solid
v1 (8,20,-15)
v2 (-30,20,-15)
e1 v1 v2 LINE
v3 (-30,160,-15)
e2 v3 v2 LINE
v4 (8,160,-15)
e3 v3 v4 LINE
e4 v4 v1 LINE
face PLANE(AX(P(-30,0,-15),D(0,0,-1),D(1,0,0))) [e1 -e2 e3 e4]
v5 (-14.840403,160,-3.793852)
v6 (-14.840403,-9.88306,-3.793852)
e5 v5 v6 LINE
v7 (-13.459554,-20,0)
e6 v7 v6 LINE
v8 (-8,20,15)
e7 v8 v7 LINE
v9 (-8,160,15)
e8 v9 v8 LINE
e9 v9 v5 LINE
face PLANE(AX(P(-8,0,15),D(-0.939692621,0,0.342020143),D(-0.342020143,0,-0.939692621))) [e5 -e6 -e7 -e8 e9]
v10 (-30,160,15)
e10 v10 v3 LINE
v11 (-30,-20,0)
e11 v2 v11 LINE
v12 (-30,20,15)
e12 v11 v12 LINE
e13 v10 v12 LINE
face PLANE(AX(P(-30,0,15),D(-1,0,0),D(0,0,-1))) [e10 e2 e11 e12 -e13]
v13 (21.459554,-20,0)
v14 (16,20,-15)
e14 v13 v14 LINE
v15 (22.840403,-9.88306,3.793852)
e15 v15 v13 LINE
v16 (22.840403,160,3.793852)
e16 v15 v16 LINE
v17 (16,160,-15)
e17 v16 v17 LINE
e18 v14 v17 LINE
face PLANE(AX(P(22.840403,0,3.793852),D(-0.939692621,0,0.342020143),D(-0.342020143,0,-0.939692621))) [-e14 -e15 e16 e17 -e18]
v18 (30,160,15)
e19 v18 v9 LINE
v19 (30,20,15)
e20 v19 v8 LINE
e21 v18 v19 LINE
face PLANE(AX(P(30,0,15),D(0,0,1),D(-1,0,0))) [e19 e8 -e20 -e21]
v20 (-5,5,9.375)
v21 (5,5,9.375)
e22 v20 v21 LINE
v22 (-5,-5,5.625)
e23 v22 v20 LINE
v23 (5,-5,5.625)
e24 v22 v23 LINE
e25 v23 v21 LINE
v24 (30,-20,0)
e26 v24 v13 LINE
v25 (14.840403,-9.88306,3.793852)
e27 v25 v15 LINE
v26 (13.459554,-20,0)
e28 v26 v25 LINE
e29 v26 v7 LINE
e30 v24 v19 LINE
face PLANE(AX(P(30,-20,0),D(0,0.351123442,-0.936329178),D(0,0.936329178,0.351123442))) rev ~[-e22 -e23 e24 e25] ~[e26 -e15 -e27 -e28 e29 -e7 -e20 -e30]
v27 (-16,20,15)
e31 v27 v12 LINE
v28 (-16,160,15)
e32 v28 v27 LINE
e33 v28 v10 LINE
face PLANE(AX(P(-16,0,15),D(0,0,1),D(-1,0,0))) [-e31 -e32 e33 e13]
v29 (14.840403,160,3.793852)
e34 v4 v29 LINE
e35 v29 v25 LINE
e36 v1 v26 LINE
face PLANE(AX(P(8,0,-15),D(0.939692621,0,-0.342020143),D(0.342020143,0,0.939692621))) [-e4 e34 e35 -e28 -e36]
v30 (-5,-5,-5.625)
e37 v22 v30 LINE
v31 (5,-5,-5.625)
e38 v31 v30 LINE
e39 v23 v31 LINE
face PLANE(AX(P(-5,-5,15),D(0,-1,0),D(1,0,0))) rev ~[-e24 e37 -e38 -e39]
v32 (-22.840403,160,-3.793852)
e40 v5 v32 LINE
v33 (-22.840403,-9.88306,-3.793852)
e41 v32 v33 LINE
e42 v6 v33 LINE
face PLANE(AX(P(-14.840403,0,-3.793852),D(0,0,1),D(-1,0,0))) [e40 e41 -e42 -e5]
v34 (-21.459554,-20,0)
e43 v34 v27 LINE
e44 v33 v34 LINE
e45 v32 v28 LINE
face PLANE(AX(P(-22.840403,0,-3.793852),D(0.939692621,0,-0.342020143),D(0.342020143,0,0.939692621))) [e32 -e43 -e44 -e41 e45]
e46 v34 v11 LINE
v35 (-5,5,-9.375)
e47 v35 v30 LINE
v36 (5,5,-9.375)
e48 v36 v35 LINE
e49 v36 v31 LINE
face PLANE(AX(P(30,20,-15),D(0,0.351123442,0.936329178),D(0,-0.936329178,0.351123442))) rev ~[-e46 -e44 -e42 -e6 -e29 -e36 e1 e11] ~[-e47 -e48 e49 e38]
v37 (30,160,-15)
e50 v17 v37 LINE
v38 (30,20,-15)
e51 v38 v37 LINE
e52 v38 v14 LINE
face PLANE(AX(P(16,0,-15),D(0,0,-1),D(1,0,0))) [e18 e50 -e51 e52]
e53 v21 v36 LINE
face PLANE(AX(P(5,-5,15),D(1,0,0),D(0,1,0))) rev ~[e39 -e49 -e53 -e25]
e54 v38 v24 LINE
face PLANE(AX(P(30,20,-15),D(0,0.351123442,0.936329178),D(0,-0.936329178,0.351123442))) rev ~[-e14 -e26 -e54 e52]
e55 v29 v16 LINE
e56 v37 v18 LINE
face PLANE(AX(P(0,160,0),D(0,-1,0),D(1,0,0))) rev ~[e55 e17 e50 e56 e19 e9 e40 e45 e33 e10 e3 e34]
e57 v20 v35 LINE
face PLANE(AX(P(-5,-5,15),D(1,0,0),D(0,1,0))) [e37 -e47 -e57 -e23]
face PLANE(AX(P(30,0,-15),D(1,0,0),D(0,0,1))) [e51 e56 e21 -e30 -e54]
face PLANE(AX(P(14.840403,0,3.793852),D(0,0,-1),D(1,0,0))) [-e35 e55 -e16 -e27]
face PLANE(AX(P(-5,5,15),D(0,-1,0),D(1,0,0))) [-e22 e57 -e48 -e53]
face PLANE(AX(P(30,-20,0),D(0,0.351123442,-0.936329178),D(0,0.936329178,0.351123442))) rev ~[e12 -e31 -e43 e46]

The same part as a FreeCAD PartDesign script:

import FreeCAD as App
import Part
import Sketcher
from FreeCAD import Vector
Q = App.Units.Quantity


def add_polygon(sketch, points):
    """Adds a closed chain of lines whose ends are joined by coincident constraints."""
    first, n = sketch.GeometryCount, len(points)
    for a, b in zip(points, points[1:] + points[:1]):
        sketch.addGeometry(Part.LineSegment(App.Vector(*a, 0), App.Vector(*b, 0)), False)
    for i in range(n):
        sketch.addConstraint(Sketcher.Constraint("Coincident", first + i, 2, first + (i + 1) % n, 1))

doc = App.newDocument("Part")
params = doc.addObject("Spreadsheet::Sheet", "Params")
for row, (alias, value) in enumerate([
    ("sketch1_width", "38 mm"),
    ("sketch1_width2", "8 mm"),
    ("sketch1_width3", "14 mm"),
    ("sketch1_height", "30 mm"),
    ("sketch1_length", "20 mm"),
    ("pad1_length", "320 mm"),
    ("sketch2_width", "10 mm"),
    ("pocket1_length", "60 mm"),
    ("sketch3_width", "180 mm"),
    ("sketch3_height", "30 mm"),
    ("pocket2_length", "60 mm"),
], start=1):
    params.set(f"A{row}", alias)
    params.set(f"B{row}", "=" + value)
    params.setAlias(f"B{row}", alias)

body = doc.addObject("PartDesign::Body", "Body")

# Sketch on XZ plane
sketch1 = body.newObject("Sketcher::SketchObject", "Sketch")
sketch1.AttachmentSupport = (doc.getObject("XZ_Plane"), [""])
sketch1.MapMode = "FlatFace"
add_polygon(sketch1, [(30, -15), (30, 15), (-8, 15), (-15, -4), (-23, -4), (-16, 15), (-30, 15), (-30, -15), (8, -15), (15, 4), (23, 4), (16, -15)])  # lines 0-11
sketch1.addConstraint([
    Sketcher.Constraint("Vertical", 0),
    Sketcher.Constraint("Horizontal", 1),
    Sketcher.Constraint("Horizontal", 3),
    Sketcher.Constraint("Horizontal", 5),
    Sketcher.Constraint("Vertical", 6),
    Sketcher.Constraint("Horizontal", 7),
    Sketcher.Constraint("Horizontal", 9),
    Sketcher.Constraint("Horizontal", 11),
    Sketcher.Constraint("Symmetric", 0, 2, 6, 2, -1, 1),
    Sketcher.Constraint("Symmetric", 2, 2, 8, 2, -1, 1),
    Sketcher.Constraint("Symmetric", 4, 2, 10, 2, -1, 1),
    Sketcher.Constraint("Parallel", 2, 4),
    Sketcher.Constraint("Parallel", 4, 8),
    Sketcher.Constraint("Parallel", 8, 10),
    Sketcher.Constraint("Horizontal", 1, 2, 4, 2),
    Sketcher.Constraint("DistanceX", 1, 2, 1, 1, Q("38 mm")),
    Sketcher.Constraint("DistanceX", 3, 2, 3, 1, Q("8 mm")),
    Sketcher.Constraint("DistanceX", 5, 2, 5, 1, Q("14 mm")),
    Sketcher.Constraint("DistanceY", 0, 1, 0, 2, Q("30 mm")),
    Sketcher.Constraint("Angle", 2, Q("-110 deg")),
    Sketcher.Constraint("Distance", 2, Q("20 mm")),
])
sketch1.setExpression("Constraints[27]", "Params.sketch1_width")
sketch1.setExpression("Constraints[28]", "Params.sketch1_width2")
sketch1.setExpression("Constraints[29]", "Params.sketch1_width3")
sketch1.setExpression("Constraints[30]", "Params.sketch1_height")
sketch1.setExpression("Constraints[32]", "Params.sketch1_length")
pad1 = body.newObject("PartDesign::Pad", "Pad")
pad1.Profile = sketch1
pad1.setExpression("Length", "Params.pad1_length")
pad1.Midplane = True

# Sketch on XY plane
sketch2 = body.newObject("Sketcher::SketchObject", "Sketch001")
sketch2.AttachmentSupport = (doc.getObject("XY_Plane"), [""])
sketch2.MapMode = "FlatFace"
sketch2.AttachmentOffset = App.Placement(Vector(0, 0, 15), App.Rotation())
add_polygon(sketch2, [(-5, 5), (-5, -5), (5, -5), (5, 5)])  # lines 0-3
sketch2.addConstraint([
    Sketcher.Constraint("Vertical", 0),
    Sketcher.Constraint("Horizontal", 1),
    Sketcher.Constraint("Vertical", 2),
    Sketcher.Constraint("Horizontal", 3),
    Sketcher.Constraint("Symmetric", 0, 2, 2, 2, -1, 1),
    Sketcher.Constraint("Equal", 3, 0),
    Sketcher.Constraint("DistanceX", 1, 1, 1, 2, Q("10 mm")),
])
sketch2.setExpression("Constraints[10]", "Params.sketch2_width")
pocket1 = body.newObject("PartDesign::Pocket", "Pocket")
pocket1.Profile = sketch2
pocket1.setExpression("Length", "Params.pocket1_length")

# Sketch on YZ plane
sketch3 = body.newObject("Sketcher::SketchObject", "Sketch002")
sketch3.AttachmentSupport = (doc.getObject("YZ_Plane"), [""])
sketch3.MapMode = "FlatFace"
sketch3.AttachmentOffset = App.Placement(Vector(0, 0, 30), App.Rotation())
add_polygon(sketch3, [(-160, 15), (-160, -15), (20, -15), (-20, 0), (20, 15)])  # lines 0-4
sketch3.addConstraint([
    Sketcher.Constraint("Vertical", 0),
    Sketcher.Constraint("Horizontal", 1),
    Sketcher.Constraint("Horizontal", 4),
    Sketcher.Constraint("Symmetric", 1, 2, 3, 2, -1),
    Sketcher.Constraint("PointOnObject", 2, 2, -1),
    Sketcher.Constraint("DistanceX", 1, 1, 1, 2, Q("180 mm")),
    Sketcher.Constraint("DistanceY", 0, 2, 0, 1, Q("30 mm")),
    Sketcher.Constraint("DistanceX", 0, 2, -1, 1, Q("160 mm")),
    Sketcher.Constraint("DistanceX", 2, 2, -1, 1, Q("20 mm")),
])
sketch3.setExpression("Constraints[10]", "Params.sketch3_width")
sketch3.setExpression("Constraints[11]", "Params.sketch3_height")
pocket2 = body.newObject("PartDesign::Pocket", "Pocket001")
pocket2.Profile = sketch3
pocket2.setExpression("Length", "Params.pocket2_length")

doc.recompute()
